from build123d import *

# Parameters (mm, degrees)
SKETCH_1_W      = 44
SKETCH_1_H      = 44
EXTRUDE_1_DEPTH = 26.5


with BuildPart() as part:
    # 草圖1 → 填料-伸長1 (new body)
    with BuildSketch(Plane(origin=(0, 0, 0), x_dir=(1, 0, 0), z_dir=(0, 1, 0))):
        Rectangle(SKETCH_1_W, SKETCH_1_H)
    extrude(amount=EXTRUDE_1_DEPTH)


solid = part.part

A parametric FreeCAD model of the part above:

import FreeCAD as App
import Part
import Sketcher
Q = App.Units.Quantity

doc = App.newDocument("Part")
params = doc.addObject("Spreadsheet::Sheet", "Params")
for row, (alias, value) in enumerate([
    ("sketch1_width", "44 mm"),
    ("pad1_length", "26.5 mm"),
], start=1):
    params.set(f"A{row}", alias)
    params.set(f"B{row}", "=" + value)
    params.setAlias(f"B{row}", alias)

body = doc.addObject("PartDesign::Body", "Body")

# Sketch on XZ plane
sketch1 = body.newObject("Sketcher::SketchObject", "Sketch")
sketch1.AttachmentSupport = (doc.getObject("XZ_Plane"), [""])
sketch1.MapMode = "FlatFace"
sketch1.addGeometry(Part.LineSegment(App.Vector(-22, -22, 0), App.Vector(-22, 22, 0)), False)
sketch1.addGeometry(Part.LineSegment(App.Vector(-22, 22, 0), App.Vector(22, 22, 0)), False)
sketch1.addGeometry(Part.LineSegment(App.Vector(22, 22, 0), App.Vector(22, -22, 0)), False)
sketch1.addGeometry(Part.LineSegment(App.Vector(22, -22, 0), App.Vector(-22, -22, 0)), False)
sketch1.addConstraint(Sketcher.Constraint("Coincident", 0, 2, 1, 1))
sketch1.addConstraint(Sketcher.Constraint("Coincident", 1, 2, 2, 1))
sketch1.addConstraint(Sketcher.Constraint("Coincident", 2, 2, 3, 1))
sketch1.addConstraint(Sketcher.Constraint("Coincident", 3, 2, 0, 1))
sketch1.addConstraint(Sketcher.Constraint("Vertical", 0))
sketch1.addConstraint(Sketcher.Constraint("Horizontal", 1))
sketch1.addConstraint(Sketcher.Constraint("Vertical", 2))
sketch1.addConstraint(Sketcher.Constraint("Horizontal", 3))
sketch1.addConstraint(Sketcher.Constraint("Symmetric", 0, 2, 2, 2, -1, 1))
sketch1.addConstraint(Sketcher.Constraint("Equal", 3, 0))
sketch1.addConstraint(Sketcher.Constraint("DistanceX", 1, 1, 1, 2, Q("44 mm")))
sketch1.setExpression("Constraints[10]", "Params.sketch1_width")
pad1 = body.newObject("PartDesign::Pad", "Pad")
pad1.Profile = sketch1
pad1.setExpression("Length", "Params.pad1_length")
pad1.Reversed = True

doc.recompute()
